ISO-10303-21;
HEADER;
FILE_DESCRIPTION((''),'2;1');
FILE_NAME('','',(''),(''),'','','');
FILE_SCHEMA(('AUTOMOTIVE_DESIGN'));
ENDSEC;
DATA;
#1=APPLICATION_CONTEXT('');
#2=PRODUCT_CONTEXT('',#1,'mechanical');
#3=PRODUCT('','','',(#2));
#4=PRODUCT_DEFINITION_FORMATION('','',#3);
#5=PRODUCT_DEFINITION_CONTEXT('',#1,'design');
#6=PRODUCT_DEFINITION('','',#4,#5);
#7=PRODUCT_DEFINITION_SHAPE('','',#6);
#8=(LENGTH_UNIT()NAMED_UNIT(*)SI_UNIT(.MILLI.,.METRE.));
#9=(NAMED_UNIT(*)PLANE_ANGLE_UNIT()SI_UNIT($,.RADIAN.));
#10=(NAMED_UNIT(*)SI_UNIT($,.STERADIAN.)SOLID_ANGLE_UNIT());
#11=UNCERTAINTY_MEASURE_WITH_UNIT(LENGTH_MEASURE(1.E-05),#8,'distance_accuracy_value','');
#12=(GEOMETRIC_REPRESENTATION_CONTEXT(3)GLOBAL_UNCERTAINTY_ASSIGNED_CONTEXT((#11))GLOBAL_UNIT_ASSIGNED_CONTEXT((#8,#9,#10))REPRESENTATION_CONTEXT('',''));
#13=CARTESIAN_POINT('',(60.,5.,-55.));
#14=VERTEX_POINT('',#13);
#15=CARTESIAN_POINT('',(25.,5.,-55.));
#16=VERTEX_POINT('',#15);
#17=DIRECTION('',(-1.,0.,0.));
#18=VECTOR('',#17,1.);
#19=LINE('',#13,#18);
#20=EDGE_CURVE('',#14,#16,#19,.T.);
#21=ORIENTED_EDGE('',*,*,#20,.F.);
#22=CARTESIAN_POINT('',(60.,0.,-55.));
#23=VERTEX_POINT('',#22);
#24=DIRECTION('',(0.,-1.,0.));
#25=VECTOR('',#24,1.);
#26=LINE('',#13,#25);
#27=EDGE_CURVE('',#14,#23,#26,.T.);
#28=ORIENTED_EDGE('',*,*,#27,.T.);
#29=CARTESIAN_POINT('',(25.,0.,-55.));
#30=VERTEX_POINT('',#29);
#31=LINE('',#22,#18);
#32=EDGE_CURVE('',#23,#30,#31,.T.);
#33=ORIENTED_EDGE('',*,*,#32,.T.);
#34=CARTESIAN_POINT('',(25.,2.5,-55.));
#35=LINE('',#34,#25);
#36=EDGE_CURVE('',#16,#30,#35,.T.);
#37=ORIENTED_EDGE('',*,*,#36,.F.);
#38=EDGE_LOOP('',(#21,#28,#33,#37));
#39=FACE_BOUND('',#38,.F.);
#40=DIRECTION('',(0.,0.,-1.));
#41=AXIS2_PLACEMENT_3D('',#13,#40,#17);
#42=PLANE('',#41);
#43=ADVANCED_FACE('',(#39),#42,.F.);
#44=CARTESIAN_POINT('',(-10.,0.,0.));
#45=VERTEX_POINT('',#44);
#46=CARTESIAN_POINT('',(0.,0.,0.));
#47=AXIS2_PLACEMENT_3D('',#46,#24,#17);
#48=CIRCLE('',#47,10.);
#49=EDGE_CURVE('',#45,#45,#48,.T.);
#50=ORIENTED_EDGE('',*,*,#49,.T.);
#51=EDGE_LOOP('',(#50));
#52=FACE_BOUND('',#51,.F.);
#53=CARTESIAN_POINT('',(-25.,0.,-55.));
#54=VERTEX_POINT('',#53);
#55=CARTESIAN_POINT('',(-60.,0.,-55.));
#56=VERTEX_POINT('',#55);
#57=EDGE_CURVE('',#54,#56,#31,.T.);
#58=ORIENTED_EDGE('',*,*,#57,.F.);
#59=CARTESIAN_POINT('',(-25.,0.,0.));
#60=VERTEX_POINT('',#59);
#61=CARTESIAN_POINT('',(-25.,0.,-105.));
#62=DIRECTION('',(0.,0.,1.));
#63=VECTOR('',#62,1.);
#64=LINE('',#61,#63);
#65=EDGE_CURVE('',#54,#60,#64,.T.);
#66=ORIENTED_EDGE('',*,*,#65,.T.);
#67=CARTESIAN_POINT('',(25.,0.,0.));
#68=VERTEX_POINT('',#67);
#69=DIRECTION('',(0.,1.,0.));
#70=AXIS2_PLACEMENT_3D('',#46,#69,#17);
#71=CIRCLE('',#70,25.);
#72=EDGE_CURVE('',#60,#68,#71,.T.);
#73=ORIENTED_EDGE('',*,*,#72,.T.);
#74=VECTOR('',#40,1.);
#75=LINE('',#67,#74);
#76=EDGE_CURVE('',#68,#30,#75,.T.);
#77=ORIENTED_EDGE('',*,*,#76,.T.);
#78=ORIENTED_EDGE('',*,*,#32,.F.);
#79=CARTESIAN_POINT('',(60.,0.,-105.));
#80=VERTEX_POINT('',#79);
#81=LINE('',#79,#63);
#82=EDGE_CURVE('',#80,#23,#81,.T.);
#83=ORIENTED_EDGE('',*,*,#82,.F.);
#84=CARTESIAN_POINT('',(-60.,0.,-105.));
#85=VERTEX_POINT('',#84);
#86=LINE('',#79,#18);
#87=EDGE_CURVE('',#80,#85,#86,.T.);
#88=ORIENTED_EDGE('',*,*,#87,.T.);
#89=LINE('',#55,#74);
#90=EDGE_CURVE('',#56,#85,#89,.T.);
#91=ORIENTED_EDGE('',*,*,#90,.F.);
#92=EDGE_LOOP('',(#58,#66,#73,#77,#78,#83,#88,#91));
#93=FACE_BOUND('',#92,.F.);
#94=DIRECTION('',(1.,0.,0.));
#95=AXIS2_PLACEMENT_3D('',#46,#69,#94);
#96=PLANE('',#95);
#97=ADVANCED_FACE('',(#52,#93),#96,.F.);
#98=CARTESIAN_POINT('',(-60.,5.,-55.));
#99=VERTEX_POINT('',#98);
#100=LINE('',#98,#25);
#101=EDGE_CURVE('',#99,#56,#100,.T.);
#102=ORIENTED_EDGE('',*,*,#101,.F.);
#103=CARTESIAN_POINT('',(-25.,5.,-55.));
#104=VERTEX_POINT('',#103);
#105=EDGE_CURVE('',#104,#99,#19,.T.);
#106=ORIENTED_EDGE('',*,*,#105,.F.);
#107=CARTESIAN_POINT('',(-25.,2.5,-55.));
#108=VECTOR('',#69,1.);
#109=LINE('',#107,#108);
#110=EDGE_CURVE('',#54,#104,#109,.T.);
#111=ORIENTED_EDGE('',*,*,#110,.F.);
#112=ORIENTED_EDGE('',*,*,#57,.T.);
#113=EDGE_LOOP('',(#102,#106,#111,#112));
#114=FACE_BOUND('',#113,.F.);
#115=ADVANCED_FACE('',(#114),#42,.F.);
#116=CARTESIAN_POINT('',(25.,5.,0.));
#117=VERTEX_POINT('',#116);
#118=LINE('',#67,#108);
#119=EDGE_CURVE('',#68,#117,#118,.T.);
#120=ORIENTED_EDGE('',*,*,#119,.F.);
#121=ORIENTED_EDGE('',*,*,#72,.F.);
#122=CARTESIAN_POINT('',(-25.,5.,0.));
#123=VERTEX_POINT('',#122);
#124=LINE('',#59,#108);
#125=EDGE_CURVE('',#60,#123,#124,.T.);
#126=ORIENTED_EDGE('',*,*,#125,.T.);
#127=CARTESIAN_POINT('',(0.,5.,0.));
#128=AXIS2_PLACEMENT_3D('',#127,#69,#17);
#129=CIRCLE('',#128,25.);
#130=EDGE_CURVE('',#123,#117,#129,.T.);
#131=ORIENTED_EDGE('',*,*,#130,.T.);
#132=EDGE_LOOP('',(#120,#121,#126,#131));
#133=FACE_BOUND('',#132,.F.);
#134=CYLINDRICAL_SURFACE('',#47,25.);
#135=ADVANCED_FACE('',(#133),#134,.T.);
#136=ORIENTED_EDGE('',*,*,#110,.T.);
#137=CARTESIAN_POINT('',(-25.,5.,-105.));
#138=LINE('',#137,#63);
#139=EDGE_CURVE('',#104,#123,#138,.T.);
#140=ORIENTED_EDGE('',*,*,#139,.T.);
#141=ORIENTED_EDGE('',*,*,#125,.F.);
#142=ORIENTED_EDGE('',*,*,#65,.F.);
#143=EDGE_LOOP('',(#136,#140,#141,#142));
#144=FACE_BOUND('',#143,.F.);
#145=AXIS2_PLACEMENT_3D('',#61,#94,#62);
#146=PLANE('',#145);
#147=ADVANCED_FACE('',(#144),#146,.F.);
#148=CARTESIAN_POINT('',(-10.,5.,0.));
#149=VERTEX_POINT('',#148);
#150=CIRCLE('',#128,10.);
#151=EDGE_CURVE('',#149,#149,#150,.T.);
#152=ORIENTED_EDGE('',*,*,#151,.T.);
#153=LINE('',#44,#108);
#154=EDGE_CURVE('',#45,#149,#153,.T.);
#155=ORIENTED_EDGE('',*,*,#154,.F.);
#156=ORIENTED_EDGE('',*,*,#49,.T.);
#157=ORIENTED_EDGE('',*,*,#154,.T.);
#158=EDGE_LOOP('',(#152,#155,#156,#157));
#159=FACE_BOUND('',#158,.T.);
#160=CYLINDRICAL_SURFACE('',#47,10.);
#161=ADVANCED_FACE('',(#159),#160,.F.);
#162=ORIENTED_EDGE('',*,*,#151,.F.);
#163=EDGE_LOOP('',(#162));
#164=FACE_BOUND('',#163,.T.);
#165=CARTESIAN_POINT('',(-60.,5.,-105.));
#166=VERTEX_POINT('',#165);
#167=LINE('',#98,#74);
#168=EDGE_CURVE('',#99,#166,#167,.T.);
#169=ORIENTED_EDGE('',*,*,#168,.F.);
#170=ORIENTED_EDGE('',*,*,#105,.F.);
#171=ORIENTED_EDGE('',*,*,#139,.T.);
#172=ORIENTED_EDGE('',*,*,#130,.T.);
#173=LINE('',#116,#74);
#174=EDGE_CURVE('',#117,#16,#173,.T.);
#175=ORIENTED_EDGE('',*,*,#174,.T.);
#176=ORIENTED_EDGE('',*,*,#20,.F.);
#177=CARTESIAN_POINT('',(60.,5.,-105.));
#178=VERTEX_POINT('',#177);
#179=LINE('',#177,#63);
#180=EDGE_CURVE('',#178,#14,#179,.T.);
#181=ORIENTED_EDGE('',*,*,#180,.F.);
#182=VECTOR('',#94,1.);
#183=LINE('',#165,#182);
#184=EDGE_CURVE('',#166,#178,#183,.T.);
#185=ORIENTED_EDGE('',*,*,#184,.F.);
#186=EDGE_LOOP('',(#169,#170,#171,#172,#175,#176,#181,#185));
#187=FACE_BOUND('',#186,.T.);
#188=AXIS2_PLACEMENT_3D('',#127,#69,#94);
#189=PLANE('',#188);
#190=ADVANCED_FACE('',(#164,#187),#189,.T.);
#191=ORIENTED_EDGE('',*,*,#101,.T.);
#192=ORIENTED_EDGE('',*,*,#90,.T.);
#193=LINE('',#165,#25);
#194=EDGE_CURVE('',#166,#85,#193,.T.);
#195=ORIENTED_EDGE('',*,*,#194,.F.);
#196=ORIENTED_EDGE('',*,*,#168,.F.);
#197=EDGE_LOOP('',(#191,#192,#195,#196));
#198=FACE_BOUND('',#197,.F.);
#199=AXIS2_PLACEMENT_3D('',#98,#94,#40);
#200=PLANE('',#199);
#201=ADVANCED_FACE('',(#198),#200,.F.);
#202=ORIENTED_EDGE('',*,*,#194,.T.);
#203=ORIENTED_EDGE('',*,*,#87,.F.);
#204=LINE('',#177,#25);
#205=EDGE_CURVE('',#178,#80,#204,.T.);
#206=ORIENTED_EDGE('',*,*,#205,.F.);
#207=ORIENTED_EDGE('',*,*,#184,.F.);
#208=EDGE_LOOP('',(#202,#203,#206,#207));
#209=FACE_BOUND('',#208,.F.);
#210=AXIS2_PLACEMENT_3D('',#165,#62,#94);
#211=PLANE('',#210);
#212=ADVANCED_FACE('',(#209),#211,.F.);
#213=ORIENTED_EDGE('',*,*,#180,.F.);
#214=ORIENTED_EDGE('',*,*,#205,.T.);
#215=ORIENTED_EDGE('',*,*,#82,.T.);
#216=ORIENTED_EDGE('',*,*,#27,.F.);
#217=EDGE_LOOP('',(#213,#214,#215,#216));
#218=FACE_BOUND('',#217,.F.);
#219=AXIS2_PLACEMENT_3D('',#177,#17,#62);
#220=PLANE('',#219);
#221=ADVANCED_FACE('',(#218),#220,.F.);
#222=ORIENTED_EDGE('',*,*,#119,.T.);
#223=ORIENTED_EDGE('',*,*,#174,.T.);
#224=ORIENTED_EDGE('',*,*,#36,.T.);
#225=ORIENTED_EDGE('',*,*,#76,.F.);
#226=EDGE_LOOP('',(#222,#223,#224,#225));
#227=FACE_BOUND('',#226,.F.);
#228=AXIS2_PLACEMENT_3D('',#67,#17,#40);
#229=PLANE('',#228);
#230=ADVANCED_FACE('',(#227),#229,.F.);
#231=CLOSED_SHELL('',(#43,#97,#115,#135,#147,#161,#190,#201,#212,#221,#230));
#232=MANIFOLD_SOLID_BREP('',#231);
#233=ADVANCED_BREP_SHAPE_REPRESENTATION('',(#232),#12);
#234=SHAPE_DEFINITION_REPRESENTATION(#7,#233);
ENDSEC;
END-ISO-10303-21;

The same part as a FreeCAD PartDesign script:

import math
import FreeCAD as App
import Part
import Sketcher
Q = App.Units.Quantity

doc = App.newDocument("Part")
params = doc.addObject("Spreadsheet::Sheet", "Params")
for row, (alias, value) in enumerate([
    ("sketch1_diameter", "20 mm"),
    ("sketch1_radius", "25 mm"),
    ("sketch1_height", "105 mm"),
    ("pad1_length", "5 mm"),
    ("sketch2_width", "120 mm"),
    ("sketch2_height", "50 mm"),
    ("pad2_length", "5 mm"),
], start=1):
    params.set(f"A{row}", alias)
    params.set(f"B{row}", "=" + value)
    params.setAlias(f"B{row}", alias)

body = doc.addObject("PartDesign::Body", "Body")

# Sketch on XZ plane
sketch1 = body.newObject("Sketcher::SketchObject", "Sketch")
sketch1.AttachmentSupport = (doc.getObject("XZ_Plane"), [""])
sketch1.MapMode = "FlatFace"
sketch1.addGeometry([
    Part.LineSegment(App.Vector(-25, -105, 0), App.Vector(-25, 0, 0)),  # 0
    Part.ArcOfCircle(Part.Circle(App.Vector(0, 0, 0), App.Vector(0, 0, 1), 25), math.radians(0), math.radians(180)),  # 1
    Part.LineSegment(App.Vector(25, 0, 0), App.Vector(25, -105, 0)),  # 2
    Part.LineSegment(App.Vector(25, -105, 0), App.Vector(-25, -105, 0)),  # 3
    Part.Circle(App.Vector(0, 0, 0), App.Vector(0, 0, 1), 10),  # 4
], False)
sketch1.addConstraint([
    Sketcher.Constraint("Tangent", 0, 2, 1, 2),
    Sketcher.Constraint("Tangent", 1, 1, 2, 1),
    Sketcher.Constraint("Coincident", 2, 2, 3, 1),
    Sketcher.Constraint("Coincident", 3, 2, 0, 1),
    Sketcher.Constraint("Vertical", 0),
    Sketcher.Constraint("Vertical", 2),
    Sketcher.Constraint("Horizontal", 3),
    Sketcher.Constraint("Coincident", 1, 3, -1, 1),
    Sketcher.Constraint("Coincident", 4, 3, -1, 1),
    Sketcher.Constraint("Diameter", 4, Q("20 mm")),
    Sketcher.Constraint("Radius", 1, Q("25 mm")),
    Sketcher.Constraint("DistanceY", 0, 1, 0, 2, Q("105 mm")),
])
sketch1.setExpression("Constraints[9]", "Params.sketch1_diameter")
sketch1.setExpression("Constraints[10]", "Params.sketch1_radius")
sketch1.setExpression("Constraints[11]", "Params.sketch1_height")
pad1 = body.newObject("PartDesign::Pad", "Pad")
pad1.Profile = sketch1
pad1.setExpression("Length", "Params.pad1_length")
pad1.Reversed = True

# Sketch on XZ plane
sketch2 = body.newObject("Sketcher::SketchObject", "Sketch001")
sketch2.AttachmentSupport = (doc.getObject("XZ_Plane"), [""])
sketch2.MapMode = "FlatFace"
sketch2.AttachmentOffset = App.Placement(App.Vector(0, 0, -5), App.Rotation())
sketch2.addGeometry([
    Part.LineSegment(App.Vector(60, -105, 0), App.Vector(-60, -105, 0)),
    Part.LineSegment(App.Vector(-60, -105, 0), App.Vector(-60, -55, 0)),
    Part.LineSegment(App.Vector(-60, -55, 0), App.Vector(60, -55, 0)),
    Part.LineSegment(App.Vector(60, -55, 0), App.Vector(60, -105, 0)),
], False)
sketch2.addConstraint([
    Sketcher.Constraint("Coincident", 0, 2, 1, 1),
    Sketcher.Constraint("Coincident", 1, 2, 2, 1),
    Sketcher.Constraint("Coincident", 2, 2, 3, 1),
    Sketcher.Constraint("Coincident", 3, 2, 0, 1),
    Sketcher.Constraint("Horizontal", 0),
    Sketcher.Constraint("Vertical", 1),
    Sketcher.Constraint("Horizontal", 2),
    Sketcher.Constraint("Vertical", 3),
    Sketcher.Constraint("DistanceX", 0, 2, 0, 1, Q("120 mm")),
    Sketcher.Constraint("DistanceY", 1, 1, 1, 2, Q("50 mm")),
    Sketcher.Constraint("DistanceX", 0, 2, -1, 1, Q("60 mm")),
    Sketcher.Constraint("DistanceY", 0, 2, -1, 1, Q("105 mm")),
])
sketch2.setExpression("Constraints[8]", "Params.sketch2_width")
sketch2.setExpression("Constraints[9]", "Params.sketch2_height")
pad2 = body.newObject("PartDesign::Pad", "Pad001")
pad2.Profile = sketch2
pad2.setExpression("Length", "Params.pad2_length")

doc.recompute()
